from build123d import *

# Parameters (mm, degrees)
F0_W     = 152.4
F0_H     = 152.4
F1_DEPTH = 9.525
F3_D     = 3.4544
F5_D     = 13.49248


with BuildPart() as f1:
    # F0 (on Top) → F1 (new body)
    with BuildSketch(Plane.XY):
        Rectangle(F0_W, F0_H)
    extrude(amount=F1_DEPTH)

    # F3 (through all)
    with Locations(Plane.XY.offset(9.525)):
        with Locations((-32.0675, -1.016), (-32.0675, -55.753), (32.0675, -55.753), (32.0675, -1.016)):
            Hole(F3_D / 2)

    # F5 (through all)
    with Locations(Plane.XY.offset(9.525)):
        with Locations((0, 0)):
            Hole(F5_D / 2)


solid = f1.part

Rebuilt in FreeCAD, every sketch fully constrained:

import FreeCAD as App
import Part
import Sketcher
from FreeCAD import Vector
Q = App.Units.Quantity


def add_polygon(sketch, points):
    """Adds a closed chain of lines whose ends are joined by coincident constraints."""
    first, n = sketch.GeometryCount, len(points)
    for a, b in zip(points, points[1:] + points[:1]):
        sketch.addGeometry(Part.LineSegment(App.Vector(*a, 0), App.Vector(*b, 0)), False)
    for i in range(n):
        sketch.addConstraint(Sketcher.Constraint("Coincident", first + i, 2, first + (i + 1) % n, 1))

doc = App.newDocument("Part")
body = doc.addObject("PartDesign::Body", "Body")

# Sketch on XY plane
sketch1 = body.newObject("Sketcher::SketchObject", "Sketch")
sketch1.AttachmentSupport = (doc.getObject("XY_Plane"), [""])
sketch1.MapMode = "FlatFace"
add_polygon(sketch1, [(-76, 76), (-76, -76), (76, -76), (76, 76)])  # lines 0-3
sketch1.addConstraint([
    Sketcher.Constraint("Vertical", 0),
    Sketcher.Constraint("Horizontal", 1),
    Sketcher.Constraint("Vertical", 2),
    Sketcher.Constraint("Horizontal", 3),
    Sketcher.Constraint("Symmetric", 0, 2, 2, 2, -1, 1),
    Sketcher.Constraint("Equal", 3, 0),
    Sketcher.Constraint("DistanceX", 1, 1, 1, 2, Q("6 in")),
])
pad1 = body.newObject("PartDesign::Pad", "Pad")
pad1.Profile = sketch1
pad1.Length = Q("0.375 in")

# Sketch on XY plane
sketch2 = body.newObject("Sketcher::SketchObject", "Sketch001")
sketch2.AttachmentSupport = (doc.getObject("XY_Plane"), [""])
sketch2.MapMode = "FlatFace"
sketch2.AttachmentOffset = App.Placement(Vector(0, 0, 0.375 * 25.4), App.Rotation())
sketch2.addGeometry([
    Part.Circle(Vector(-32.1, -1, 0), Vector(0, 0, 1), 1.7),
    Part.Circle(Vector(-32.1, -55.8, 0), Vector(0, 0, 1), 1.7),
    Part.Circle(Vector(32.1, -55.8, 0), Vector(0, 0, 1), 1.7),
    Part.Circle(Vector(32.1, -1, 0), Vector(0, 0, 1), 1.7),
], False)
sketch2.addConstraint([
    Sketcher.Constraint("Equal", 0, 1),
    Sketcher.Constraint("Equal", 1, 2),
    Sketcher.Constraint("Equal", 2, 3),
    Sketcher.Constraint("Symmetric", 1, 3, 2, 3, -2),
    Sketcher.Constraint("Symmetric", 0, 3, 3, 3, -2),
    Sketcher.Constraint("Vertical", 0, 3, 1, 3),
    Sketcher.Constraint("Diameter", 0, Q("0.136 in")),
    Sketcher.Constraint("DistanceY", 0, 3, -1, 1, Q("0.04 in")),
    Sketcher.Constraint("DistanceY", 1, 3, -1, 1, Q("2.195 in")),
    Sketcher.Constraint("DistanceX", 1, 3, 2, 3, Q("2.525 in")),
])
doc.recompute()
hole = body.newObject("PartDesign::Hole", "Hole")
hole.Profile = sketch2
hole.ThreadType = "None"
hole.Diameter = Q("0.136 in")
hole.DepthType = "ThroughAll"

# Sketch on XY plane
sketch3 = body.newObject("Sketcher::SketchObject", "Sketch002")
sketch3.AttachmentSupport = (doc.getObject("XY_Plane"), [""])
sketch3.MapMode = "FlatFace"
sketch3.AttachmentOffset = App.Placement(Vector(0, 0, 0.375 * 25.4), App.Rotation())
sketch3.addGeometry(Part.Circle(Vector(0, 0, 0), Vector(0, 0, 1), 7), False)
sketch3.addConstraint([
    Sketcher.Constraint("Coincident", 0, 3, -1, 1),
    Sketcher.Constraint("Diameter", 0, Q("0.5312 in")),
])
doc.recompute()
hole2 = body.newObject("PartDesign::Hole", "Hole001")
hole2.Profile = sketch3
hole2.ThreadType = "None"
hole2.Diameter = Q("0.5312 in")
hole2.DepthType = "ThroughAll"

doc.recompute()
